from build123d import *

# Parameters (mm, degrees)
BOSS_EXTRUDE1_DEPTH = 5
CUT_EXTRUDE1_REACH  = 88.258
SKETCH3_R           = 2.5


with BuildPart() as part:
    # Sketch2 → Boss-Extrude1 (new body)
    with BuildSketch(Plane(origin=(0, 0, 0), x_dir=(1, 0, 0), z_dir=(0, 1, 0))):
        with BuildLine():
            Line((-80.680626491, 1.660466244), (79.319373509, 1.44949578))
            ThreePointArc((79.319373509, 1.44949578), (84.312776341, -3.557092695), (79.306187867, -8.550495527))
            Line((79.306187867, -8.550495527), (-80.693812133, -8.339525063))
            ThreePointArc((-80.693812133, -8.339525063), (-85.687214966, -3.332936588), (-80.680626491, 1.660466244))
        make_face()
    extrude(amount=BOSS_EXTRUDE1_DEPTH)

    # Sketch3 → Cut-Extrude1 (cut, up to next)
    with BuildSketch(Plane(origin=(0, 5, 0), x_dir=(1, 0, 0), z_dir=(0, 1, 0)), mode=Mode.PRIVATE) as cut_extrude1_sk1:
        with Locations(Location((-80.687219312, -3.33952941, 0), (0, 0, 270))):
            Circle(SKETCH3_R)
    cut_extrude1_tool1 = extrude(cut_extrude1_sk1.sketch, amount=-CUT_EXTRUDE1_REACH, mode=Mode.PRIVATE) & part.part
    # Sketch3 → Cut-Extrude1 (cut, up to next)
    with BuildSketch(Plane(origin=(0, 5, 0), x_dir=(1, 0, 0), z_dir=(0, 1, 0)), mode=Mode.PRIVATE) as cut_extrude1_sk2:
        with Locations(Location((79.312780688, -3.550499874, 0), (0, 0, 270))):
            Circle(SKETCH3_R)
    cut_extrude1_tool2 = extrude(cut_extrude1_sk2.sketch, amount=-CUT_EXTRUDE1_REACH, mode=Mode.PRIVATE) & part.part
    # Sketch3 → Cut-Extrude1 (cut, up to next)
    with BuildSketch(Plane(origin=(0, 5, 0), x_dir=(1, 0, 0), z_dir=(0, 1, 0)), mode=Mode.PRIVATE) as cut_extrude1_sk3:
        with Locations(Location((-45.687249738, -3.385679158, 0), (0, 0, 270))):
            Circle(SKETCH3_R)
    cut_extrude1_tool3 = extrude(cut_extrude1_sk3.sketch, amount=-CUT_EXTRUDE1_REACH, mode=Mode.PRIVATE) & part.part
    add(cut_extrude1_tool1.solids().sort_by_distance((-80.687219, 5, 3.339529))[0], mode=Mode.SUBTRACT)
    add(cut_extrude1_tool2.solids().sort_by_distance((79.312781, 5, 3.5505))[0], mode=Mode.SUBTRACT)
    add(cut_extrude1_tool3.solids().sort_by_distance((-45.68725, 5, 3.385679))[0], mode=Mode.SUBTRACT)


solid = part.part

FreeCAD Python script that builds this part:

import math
import FreeCAD as App
import Part
import Sketcher
Q = App.Units.Quantity

doc = App.newDocument("Part")
body = doc.addObject("PartDesign::Body", "Body")

# Sketch on XZ plane
sketch1 = doc.addObject("Sketcher::SketchObject", "Sketch")
body.addObject(sketch1)
sketch1.AttachmentSupport = (doc.XZ_Plane, [""])
sketch1.MapMode = "FlatFace"
sketch1.addGeometry([
    Part.LineSegment(App.Vector(79.319374, -1.449496, 0), App.Vector(-80.680626, -1.660466, 0)),
    Part.ArcOfCircle(Part.Circle(App.Vector(-80.687219, 3.339529, 0), App.Vector(0, 0, 1), 5), math.radians(90.075548), math.radians(270.075548)),
    Part.LineSegment(App.Vector(-80.693812, 8.339525, 0), App.Vector(79.306188, 8.550496, 0)),
    Part.ArcOfCircle(Part.Circle(App.Vector(79.312781, 3.5505, 0), App.Vector(0, 0, 1), 5), math.radians(-89.924452), math.radians(90.075548)),
], False)
sketch1.addConstraint([
    Sketcher.Constraint("Tangent", 0, 2, 1, 2),
    Sketcher.Constraint("Tangent", 1, 1, 2, 1),
    Sketcher.Constraint("Tangent", 2, 2, 3, 2),
    Sketcher.Constraint("Tangent", 3, 1, 0, 1),
    Sketcher.Constraint("Equal", 1, 3),
    Sketcher.Constraint("Radius", 1, Q("5 mm")),
    Sketcher.Constraint("DistanceX", 1, 3, 3, 3, Q("160 mm")),
    Sketcher.Constraint("DistanceY", -1, 1, 3, 3, Q("3.5505 mm")),
    Sketcher.Constraint("DistanceX", 1, 3, -1, 1, Q("80.687219 mm")),
    Sketcher.Constraint("DistanceY", -1, 1, 1, 3, Q("3.339529 mm")),
])
pad1 = doc.addObject("PartDesign::Pad", "Pad")
body.addObject(pad1)
pad1.Profile = sketch1
pad1.Length = 5
pad1.Reversed = True

# Sketch on XZ plane
sketch2 = doc.addObject("Sketcher::SketchObject", "Sketch001")
body.addObject(sketch2)
sketch2.AttachmentSupport = (doc.XZ_Plane, [""])
sketch2.MapMode = "FlatFace"
sketch2.AttachmentOffset = App.Placement(App.Vector(0, 0, -5), App.Rotation())
sketch2.addGeometry(Part.Circle(App.Vector(-80.687219, 3.339529, 0), App.Vector(0, 0, 1), 2.5), False)
sketch2.addConstraint([
    Sketcher.Constraint("Diameter", 0, Q("5 mm")),
    Sketcher.Constraint("DistanceX", 0, 3, -1, 1, Q("80.687219 mm")),
    Sketcher.Constraint("DistanceY", -1, 1, 0, 3, Q("3.339529 mm")),
])
pocket1 = doc.addObject("PartDesign::Pocket", "Pocket")
body.addObject(pocket1)
pocket1.Profile = sketch2
pocket1.Type = "UpToFirst"
pocket1.Reversed = True

# Sketch on XZ plane
sketch3 = doc.addObject("Sketcher::SketchObject", "Sketch002")
body.addObject(sketch3)
sketch3.AttachmentSupport = (doc.XZ_Plane, [""])
sketch3.MapMode = "FlatFace"
sketch3.AttachmentOffset = App.Placement(App.Vector(0, 0, -5), App.Rotation())
sketch3.addGeometry(Part.Circle(App.Vector(79.312781, 3.5505, 0), App.Vector(0, 0, 1), 2.5), False)
sketch3.addConstraint([
    Sketcher.Constraint("Diameter", 0, Q("5 mm")),
    Sketcher.Constraint("DistanceY", -1, 1, 0, 3, Q("3.5505 mm")),
    Sketcher.Constraint("DistanceX", -1, 1, 0, 3, Q("79.312781 mm")),
])
pocket2 = doc.addObject("PartDesign::Pocket", "Pocket001")
body.addObject(pocket2)
pocket2.Profile = sketch3
pocket2.Type = "UpToFirst"
pocket2.Reversed = True

# Sketch on XZ plane
sketch4 = doc.addObject("Sketcher::SketchObject", "Sketch003")
body.addObject(sketch4)
sketch4.AttachmentSupport = (doc.XZ_Plane, [""])
sketch4.MapMode = "FlatFace"
sketch4.AttachmentOffset = App.Placement(App.Vector(0, 0, -5), App.Rotation())
sketch4.addGeometry(Part.Circle(App.Vector(-45.68725, 3.385679, 0), App.Vector(0, 0, 1), 2.5), False)
sketch4.addConstraint([
    Sketcher.Constraint("Diameter", 0, Q("5 mm")),
    Sketcher.Constraint("DistanceX", 0, 3, -1, 1, Q("45.68725 mm")),
    Sketcher.Constraint("DistanceY", -1, 1, 0, 3, Q("3.385679 mm")),
])
pocket3 = doc.addObject("PartDesign::Pocket", "Pocket002")
body.addObject(pocket3)
pocket3.Profile = sketch4
pocket3.Type = "UpToFirst"
pocket3.Reversed = True

doc.recompute()
